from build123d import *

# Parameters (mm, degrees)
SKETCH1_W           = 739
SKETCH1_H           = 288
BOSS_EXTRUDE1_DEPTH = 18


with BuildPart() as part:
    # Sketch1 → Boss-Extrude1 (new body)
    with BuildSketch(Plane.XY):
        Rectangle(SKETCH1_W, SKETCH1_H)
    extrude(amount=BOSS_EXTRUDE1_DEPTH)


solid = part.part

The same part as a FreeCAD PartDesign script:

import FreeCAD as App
import Part
import Sketcher

V = App.Vector

doc = App.newDocument("Part")
body = doc.addObject("PartDesign::Body", "Body")

# Sketch on XY plane
sketch1 = body.newObject("Sketcher::SketchObject", "Sketch")
sketch1.AttachmentSupport = (doc.getObject("XY_Plane"), [""])
sketch1.MapMode = "FlatFace"
sketch1.addGeometry([
    Part.LineSegment(V(-369.5, 144, 0), V(-369.5, -144, 0)),
    Part.LineSegment(V(-369.5, -144, 0), V(369.5, -144, 0)),
    Part.LineSegment(V(369.5, -144, 0), V(369.5, 144, 0)),
    Part.LineSegment(V(369.5, 144, 0), V(-369.5, 144, 0)),
], False)
sketch1.addConstraint([
    Sketcher.Constraint("Coincident", 0, 2, 1, 1),
    Sketcher.Constraint("Coincident", 1, 2, 2, 1),
    Sketcher.Constraint("Coincident", 2, 2, 3, 1),
    Sketcher.Constraint("Coincident", 3, 2, 0, 1),
    Sketcher.Constraint("Vertical", 0),
    Sketcher.Constraint("Horizontal", 1),
    Sketcher.Constraint("Vertical", 2),
    Sketcher.Constraint("Horizontal", 3),
    Sketcher.Constraint("Symmetric", 0, 2, 2, 2, -1, 1),
    Sketcher.Constraint("DistanceX", 1, 1, 1, 2, 739.0),
    Sketcher.Constraint("DistanceY", 0, 2, 0, 1, 288.0),
])
pad1 = body.newObject("PartDesign::Pad", "Pad")
pad1.Profile = sketch1
pad1.Length = 18

doc.recompute()
